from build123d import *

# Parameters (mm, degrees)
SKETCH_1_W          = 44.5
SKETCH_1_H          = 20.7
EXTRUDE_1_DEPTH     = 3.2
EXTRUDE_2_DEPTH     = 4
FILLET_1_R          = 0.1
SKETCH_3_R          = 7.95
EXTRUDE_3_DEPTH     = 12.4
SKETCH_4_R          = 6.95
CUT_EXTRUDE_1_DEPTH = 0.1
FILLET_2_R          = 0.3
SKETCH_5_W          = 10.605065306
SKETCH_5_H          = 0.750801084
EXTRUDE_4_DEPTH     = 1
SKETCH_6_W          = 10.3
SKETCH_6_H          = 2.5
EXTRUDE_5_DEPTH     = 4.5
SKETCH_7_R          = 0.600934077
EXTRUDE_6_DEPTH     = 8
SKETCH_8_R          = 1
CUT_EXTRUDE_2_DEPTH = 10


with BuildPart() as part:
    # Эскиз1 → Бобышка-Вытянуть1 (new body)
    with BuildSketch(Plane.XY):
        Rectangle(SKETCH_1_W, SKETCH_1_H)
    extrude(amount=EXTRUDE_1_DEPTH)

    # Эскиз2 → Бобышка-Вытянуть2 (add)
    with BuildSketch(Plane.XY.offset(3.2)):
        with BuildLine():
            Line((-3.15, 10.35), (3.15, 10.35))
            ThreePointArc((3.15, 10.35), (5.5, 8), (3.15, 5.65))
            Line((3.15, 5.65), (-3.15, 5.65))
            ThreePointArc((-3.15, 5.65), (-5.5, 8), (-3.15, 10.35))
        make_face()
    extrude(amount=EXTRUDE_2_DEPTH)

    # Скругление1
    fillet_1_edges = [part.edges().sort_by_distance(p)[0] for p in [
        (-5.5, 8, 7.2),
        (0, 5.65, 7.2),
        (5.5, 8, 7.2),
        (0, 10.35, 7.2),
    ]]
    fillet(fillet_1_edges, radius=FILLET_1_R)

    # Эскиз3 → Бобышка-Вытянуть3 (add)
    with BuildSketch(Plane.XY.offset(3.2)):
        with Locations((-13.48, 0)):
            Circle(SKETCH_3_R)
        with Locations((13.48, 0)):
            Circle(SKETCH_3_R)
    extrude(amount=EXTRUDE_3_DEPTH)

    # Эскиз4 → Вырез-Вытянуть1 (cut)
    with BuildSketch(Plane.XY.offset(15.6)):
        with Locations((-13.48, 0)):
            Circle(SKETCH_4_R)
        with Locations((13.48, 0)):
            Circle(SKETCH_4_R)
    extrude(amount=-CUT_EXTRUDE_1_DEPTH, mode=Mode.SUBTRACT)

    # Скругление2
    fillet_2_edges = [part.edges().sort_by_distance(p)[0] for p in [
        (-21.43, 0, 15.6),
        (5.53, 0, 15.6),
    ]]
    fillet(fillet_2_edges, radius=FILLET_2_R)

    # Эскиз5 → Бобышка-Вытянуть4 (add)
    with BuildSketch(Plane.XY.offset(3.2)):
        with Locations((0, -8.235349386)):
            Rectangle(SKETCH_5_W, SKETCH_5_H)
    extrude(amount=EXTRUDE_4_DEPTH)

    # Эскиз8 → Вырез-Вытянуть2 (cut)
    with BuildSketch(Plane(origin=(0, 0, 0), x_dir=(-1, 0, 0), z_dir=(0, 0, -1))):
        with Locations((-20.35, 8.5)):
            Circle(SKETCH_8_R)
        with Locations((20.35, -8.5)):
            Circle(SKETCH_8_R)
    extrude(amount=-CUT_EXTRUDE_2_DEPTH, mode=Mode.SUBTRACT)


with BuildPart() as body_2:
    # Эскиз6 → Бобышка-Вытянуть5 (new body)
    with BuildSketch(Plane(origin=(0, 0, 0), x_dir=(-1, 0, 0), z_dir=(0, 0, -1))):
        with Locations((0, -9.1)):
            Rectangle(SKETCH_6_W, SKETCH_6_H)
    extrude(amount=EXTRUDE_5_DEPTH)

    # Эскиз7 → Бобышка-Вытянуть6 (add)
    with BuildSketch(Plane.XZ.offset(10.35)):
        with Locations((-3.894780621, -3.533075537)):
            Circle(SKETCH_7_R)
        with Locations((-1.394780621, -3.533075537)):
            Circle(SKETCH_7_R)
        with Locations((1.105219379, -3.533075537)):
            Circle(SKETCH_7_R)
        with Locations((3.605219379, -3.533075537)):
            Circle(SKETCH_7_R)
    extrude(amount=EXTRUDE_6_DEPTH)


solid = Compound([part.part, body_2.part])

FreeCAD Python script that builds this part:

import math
import FreeCAD as App
import Part
import Sketcher
Q = App.Units.Quantity


def edges_at(feature, points):
    """Names of the edges that pass closest to the given points."""
    edges = feature.Shape.Edges
    near = lambda p: min(range(len(edges)), key=lambda i: edges[i].distToShape(Part.Vertex(*p))[0])
    return sorted({f"Edge{near(p) + 1}" for p in points})

doc = App.newDocument("Part")
body = doc.addObject("PartDesign::Body", "Body")

# Sketch on XY plane
sketch1 = doc.addObject("Sketcher::SketchObject", "Sketch")
body.addObject(sketch1)
sketch1.AttachmentSupport = (doc.XY_Plane, [""])
sketch1.MapMode = "FlatFace"
sketch1.addGeometry(Part.LineSegment(App.Vector(-22, 10, 0), App.Vector(-22, -10, 0)), False)
sketch1.addGeometry(Part.LineSegment(App.Vector(-22, -10, 0), App.Vector(22, -10, 0)), False)
sketch1.addGeometry(Part.LineSegment(App.Vector(22, -10, 0), App.Vector(22, 10, 0)), False)
sketch1.addGeometry(Part.LineSegment(App.Vector(22, 10, 0), App.Vector(-22, 10, 0)), False)
sketch1.addConstraint(Sketcher.Constraint("Coincident", 0, 2, 1, 1))
sketch1.addConstraint(Sketcher.Constraint("Coincident", 1, 2, 2, 1))
sketch1.addConstraint(Sketcher.Constraint("Coincident", 2, 2, 3, 1))
sketch1.addConstraint(Sketcher.Constraint("Coincident", 3, 2, 0, 1))
sketch1.addConstraint(Sketcher.Constraint("Vertical", 0))
sketch1.addConstraint(Sketcher.Constraint("Horizontal", 1))
sketch1.addConstraint(Sketcher.Constraint("Vertical", 2))
sketch1.addConstraint(Sketcher.Constraint("Horizontal", 3))
sketch1.addConstraint(Sketcher.Constraint("Symmetric", 0, 2, 2, 2, -1, 1))
sketch1.addConstraint(Sketcher.Constraint("DistanceX", 1, 1, 1, 2, Q("44.5 mm")))
sketch1.addConstraint(Sketcher.Constraint("DistanceY", 0, 2, 0, 1, Q("20.7 mm")))
pad1 = doc.addObject("PartDesign::Pad", "Pad")
body.addObject(pad1)
pad1.Profile = sketch1
pad1.Length = 3.2

# Sketch on XY plane
sketch2 = doc.addObject("Sketcher::SketchObject", "Sketch001")
body.addObject(sketch2)
sketch2.AttachmentSupport = (doc.XY_Plane, [""])
sketch2.MapMode = "FlatFace"
sketch2.AttachmentOffset = App.Placement(App.Vector(0, 0, 3.2), App.Rotation())
sketch2.addGeometry(Part.LineSegment(App.Vector(3.1, 10.3, 0), App.Vector(-3.1, 10.3, 0)), False)
sketch2.addGeometry(Part.ArcOfCircle(Part.Circle(App.Vector(-3.1, 8, 0), App.Vector(0, 0, 1), 2.4), math.radians(90), math.radians(270)), False)
sketch2.addGeometry(Part.LineSegment(App.Vector(-3.1, 5.7, 0), App.Vector(3.1, 5.7, 0)), False)
sketch2.addGeometry(Part.ArcOfCircle(Part.Circle(App.Vector(3.1, 8, 0), App.Vector(0, 0, 1), 2.4), math.radians(-90), math.radians(90)), False)
sketch2.addConstraint(Sketcher.Constraint("Tangent", 0, 2, 1, 1))
sketch2.addConstraint(Sketcher.Constraint("Tangent", 1, 2, 2, 1))
sketch2.addConstraint(Sketcher.Constraint("Tangent", 2, 2, 3, 1))
sketch2.addConstraint(Sketcher.Constraint("Tangent", 3, 2, 0, 1))
sketch2.addConstraint(Sketcher.Constraint("Horizontal", 0))
sketch2.addConstraint(Sketcher.Constraint("Horizontal", 2))
sketch2.addConstraint(Sketcher.Constraint("Radius", 1, Q("2.35 mm")))
sketch2.addConstraint(Sketcher.Constraint("DistanceX", 0, 2, 0, 1, Q("6.3 mm")))
sketch2.addConstraint(Sketcher.Constraint("DistanceY", -1, 1, 1, 3, Q("8 mm")))
sketch2.addConstraint(Sketcher.Constraint("DistanceX", 1, 3, -1, 1, Q("3.15 mm")))
pad2 = doc.addObject("PartDesign::Pad", "Pad001")
body.addObject(pad2)
pad2.Profile = sketch2
pad2.Length = 4
doc.recompute()

fillet = doc.addObject("PartDesign::Fillet", "Fillet")
body.addObject(fillet)
fillet.Base = (pad2, edges_at(pad2, [
    (-5.5, 8, 7.2),
    (0, 5.65, 7.2),
    (5.5, 8, 7.2),
    (0, 10.35, 7.2),
]))
fillet.Radius = 0.1

# Sketch on XY plane
sketch3 = doc.addObject("Sketcher::SketchObject", "Sketch002")
body.addObject(sketch3)
sketch3.AttachmentSupport = (doc.XY_Plane, [""])
sketch3.MapMode = "FlatFace"
sketch3.AttachmentOffset = App.Placement(App.Vector(0, 0, 3.2), App.Rotation())
sketch3.addGeometry(Part.Circle(App.Vector(-13, 0, 0), App.Vector(0, 0, 1), 8), False)
sketch3.addGeometry(Part.Circle(App.Vector(13, 0, 0), App.Vector(0, 0, 1), 8), False)
sketch3.addConstraint(Sketcher.Constraint("Equal", 0, 1))
sketch3.addConstraint(Sketcher.Constraint("Symmetric", 0, 3, 1, 3, -1, 1))
sketch3.addConstraint(Sketcher.Constraint("PointOnObject", 0, 3, -1))
sketch3.addConstraint(Sketcher.Constraint("Diameter", 0, Q("15.9 mm")))
sketch3.addConstraint(Sketcher.Constraint("DistanceX", 0, 3, -1, 1, Q("13.48 mm")))
pad3 = doc.addObject("PartDesign::Pad", "Pad002")
body.addObject(pad3)
pad3.Profile = sketch3
pad3.Length = 12.4

# Sketch on XY plane
sketch4 = doc.addObject("Sketcher::SketchObject", "Sketch003")
body.addObject(sketch4)
sketch4.AttachmentSupport = (doc.XY_Plane, [""])
sketch4.MapMode = "FlatFace"
sketch4.AttachmentOffset = App.Placement(App.Vector(0, 0, 15.6), App.Rotation())
sketch4.addGeometry(Part.Circle(App.Vector(-13, 0, 0), App.Vector(0, 0, 1), 7), False)
sketch4.addGeometry(Part.Circle(App.Vector(13, 0, 0), App.Vector(0, 0, 1), 7), False)
sketch4.addConstraint(Sketcher.Constraint("Equal", 0, 1))
sketch4.addConstraint(Sketcher.Constraint("Symmetric", 0, 3, 1, 3, -1, 1))
sketch4.addConstraint(Sketcher.Constraint("PointOnObject", 0, 3, -1))
sketch4.addConstraint(Sketcher.Constraint("Diameter", 0, Q("13.9 mm")))
sketch4.addConstraint(Sketcher.Constraint("DistanceX", 0, 3, -1, 1, Q("13.48 mm")))
pocket1 = doc.addObject("PartDesign::Pocket", "Pocket")
body.addObject(pocket1)
pocket1.Profile = sketch4
pocket1.Length = 0.1
doc.recompute()

fillet2 = doc.addObject("PartDesign::Fillet", "Fillet001")
body.addObject(fillet2)
fillet2.Base = (pocket1, edges_at(pocket1, [(-21.43, 0, 15.6), (5.53, 0, 15.6)]))
fillet2.Radius = 0.3

# Sketch on XY plane
sketch5 = doc.addObject("Sketcher::SketchObject", "Sketch004")
body.addObject(sketch5)
sketch5.AttachmentSupport = (doc.XY_Plane, [""])
sketch5.MapMode = "FlatFace"
sketch5.AttachmentOffset = App.Placement(App.Vector(0, 0, 3.2), App.Rotation())
sketch5.addGeometry(Part.LineSegment(App.Vector(-5.3, -7.9, 0), App.Vector(-5.3, -8.6, 0)), False)
sketch5.addGeometry(Part.LineSegment(App.Vector(-5.3, -8.6, 0), App.Vector(5.3, -8.6, 0)), False)
sketch5.addGeometry(Part.LineSegment(App.Vector(5.3, -8.6, 0), App.Vector(5.3, -7.9, 0)), False)
sketch5.addGeometry(Part.LineSegment(App.Vector(5.3, -7.9, 0), App.Vector(-5.3, -7.9, 0)), False)
sketch5.addConstraint(Sketcher.Constraint("Coincident", 0, 2, 1, 1))
sketch5.addConstraint(Sketcher.Constraint("Coincident", 1, 2, 2, 1))
sketch5.addConstraint(Sketcher.Constraint("Coincident", 2, 2, 3, 1))
sketch5.addConstraint(Sketcher.Constraint("Coincident", 3, 2, 0, 1))
sketch5.addConstraint(Sketcher.Constraint("Vertical", 0))
sketch5.addConstraint(Sketcher.Constraint("Horizontal", 1))
sketch5.addConstraint(Sketcher.Constraint("Vertical", 2))
sketch5.addConstraint(Sketcher.Constraint("Horizontal", 3))
sketch5.addConstraint(Sketcher.Constraint("DistanceY", 0, 2, 0, 1, Q("0.750801 mm")))
sketch5.addConstraint(Sketcher.Constraint("DistanceX", 1, 1, 1, 2, Q("10.605065 mm")))
sketch5.addConstraint(Sketcher.Constraint("DistanceY", 0, 2, -1, 1, Q("8.61075 mm")))
sketch5.addConstraint(Sketcher.Constraint("DistanceX", 0, 2, -1, 1, Q("5.302533 mm")))
pad4 = doc.addObject("PartDesign::Pad", "Pad003")
body.addObject(pad4)
pad4.Profile = sketch5
pad4.Length = 1

# Sketch on XY plane
sketch6 = doc.addObject("Sketcher::SketchObject", "Sketch005")
body.addObject(sketch6)
sketch6.AttachmentSupport = (doc.XY_Plane, [""])
sketch6.MapMode = "FlatFace"
sketch6.addGeometry(Part.Circle(App.Vector(20.4, 8.5, 0), App.Vector(0, 0, 1), 1), False)
sketch6.addGeometry(Part.Circle(App.Vector(-20.4, -8.5, 0), App.Vector(0, 0, 1), 1), False)
sketch6.addConstraint(Sketcher.Constraint("Equal", 0, 1))
sketch6.addConstraint(Sketcher.Constraint("Symmetric", 0, 3, 1, 3, -1, 1))
sketch6.addConstraint(Sketcher.Constraint("Diameter", 0, Q("2 mm")))
sketch6.addConstraint(Sketcher.Constraint("DistanceY", 1, 3, 0, 3, Q("17 mm")))
sketch6.addConstraint(Sketcher.Constraint("DistanceX", 1, 3, 0, 3, Q("40.7 mm")))
pocket2 = doc.addObject("PartDesign::Pocket", "Pocket001")
body.addObject(pocket2)
pocket2.Profile = sketch6
pocket2.Length = 10
pocket2.Reversed = True
body2 = doc.addObject("PartDesign::Body", "Body001")

# Sketch on XY plane
sketch7 = doc.addObject("Sketcher::SketchObject", "Sketch006")
body2.addObject(sketch7)
sketch7.AttachmentSupport = (doc.getObject("XY_Plane001"), [""])
sketch7.MapMode = "FlatFace"
sketch7.addGeometry(Part.LineSegment(App.Vector(5.2, -7.8, 0), App.Vector(5.2, -10.3, 0)), False)
sketch7.addGeometry(Part.LineSegment(App.Vector(5.2, -10.3, 0), App.Vector(-5.2, -10.3, 0)), False)
sketch7.addGeometry(Part.LineSegment(App.Vector(-5.2, -10.3, 0), App.Vector(-5.2, -7.8, 0)), False)
sketch7.addGeometry(Part.LineSegment(App.Vector(-5.2, -7.8, 0), App.Vector(5.2, -7.8, 0)), False)
sketch7.addConstraint(Sketcher.Constraint("Coincident", 0, 2, 1, 1))
sketch7.addConstraint(Sketcher.Constraint("Coincident", 1, 2, 2, 1))
sketch7.addConstraint(Sketcher.Constraint("Coincident", 2, 2, 3, 1))
sketch7.addConstraint(Sketcher.Constraint("Coincident", 3, 2, 0, 1))
sketch7.addConstraint(Sketcher.Constraint("Vertical", 0))
sketch7.addConstraint(Sketcher.Constraint("Horizontal", 1))
sketch7.addConstraint(Sketcher.Constraint("Vertical", 2))
sketch7.addConstraint(Sketcher.Constraint("Horizontal", 3))
sketch7.addConstraint(Sketcher.Constraint("DistanceX", 1, 2, 1, 1, Q("10.3 mm")))
sketch7.addConstraint(Sketcher.Constraint("DistanceY", 0, 2, 0, 1, Q("2.5 mm")))
sketch7.addConstraint(Sketcher.Constraint("DistanceX", -1, 1, 0, 2, Q("5.15 mm")))
sketch7.addConstraint(Sketcher.Constraint("DistanceY", 0, 2, -1, 1, Q("10.35 mm")))
pad5 = doc.addObject("PartDesign::Pad", "Pad004")
body2.addObject(pad5)
pad5.Profile = sketch7
pad5.Length = 4.5
pad5.Reversed = True

# Sketch on XZ plane
sketch8 = doc.addObject("Sketcher::SketchObject", "Sketch007")
body2.addObject(sketch8)
sketch8.AttachmentSupport = (doc.getObject("XZ_Plane001"), [""])
sketch8.MapMode = "FlatFace"
sketch8.AttachmentOffset = App.Placement(App.Vector(0, 0, 10.35), App.Rotation())
sketch8.addGeometry(Part.Circle(App.Vector(-3.9, -3.5, 0), App.Vector(0, 0, 1), 0.6), False)
sketch8.addGeometry(Part.Circle(App.Vector(-1.4, -3.5, 0), App.Vector(0, 0, 1), 0.6), False)
sketch8.addGeometry(Part.Circle(App.Vector(1.1, -3.5, 0), App.Vector(0, 0, 1), 0.6), False)
sketch8.addGeometry(Part.Circle(App.Vector(3.6, -3.5, 0), App.Vector(0, 0, 1), 0.6), False)
sketch8.addConstraint(Sketcher.Constraint("Equal", 0, 1))
sketch8.addConstraint(Sketcher.Constraint("Equal", 1, 2))
sketch8.addConstraint(Sketcher.Constraint("Equal", 2, 3))
sketch8.addConstraint(Sketcher.Constraint("Horizontal", 0, 3, 1, 3))
sketch8.addConstraint(Sketcher.Constraint("Horizontal", 1, 3, 2, 3))
sketch8.addConstraint(Sketcher.Constraint("Horizontal", 2, 3, 3, 3))
sketch8.addConstraint(Sketcher.Constraint("DistanceX", 0, 3, 2, 3, Q("5 mm")))
sketch8.addConstraint(Sketcher.Constraint("DistanceX", 1, 3, 3, 3, Q("5 mm")))
sketch8.addConstraint(Sketcher.Constraint("DistanceX", 0, 3, 1, 3, Q("2.5 mm")))
sketch8.addConstraint(Sketcher.Constraint("Diameter", 0, Q("1.201868 mm")))
sketch8.addConstraint(Sketcher.Constraint("DistanceX", 0, 3, -1, 1, Q("3.894781 mm")))
sketch8.addConstraint(Sketcher.Constraint("DistanceY", 0, 3, -1, 1, Q("3.533076 mm")))
pad6 = doc.addObject("PartDesign::Pad", "Pad005")
body2.addObject(pad6)
pad6.Profile = sketch8
pad6.Length = 8

doc.recompute()
